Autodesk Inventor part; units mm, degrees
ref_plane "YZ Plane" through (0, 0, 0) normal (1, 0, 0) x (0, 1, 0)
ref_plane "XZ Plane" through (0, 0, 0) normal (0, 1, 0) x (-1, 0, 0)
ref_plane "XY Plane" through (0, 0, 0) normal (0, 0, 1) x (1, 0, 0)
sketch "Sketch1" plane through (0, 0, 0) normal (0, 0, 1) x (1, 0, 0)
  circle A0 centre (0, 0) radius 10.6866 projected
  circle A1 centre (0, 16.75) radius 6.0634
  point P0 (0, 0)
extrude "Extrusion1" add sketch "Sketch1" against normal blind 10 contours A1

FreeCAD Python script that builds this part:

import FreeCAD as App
import Part
import Sketcher
from FreeCAD import Vector
Q = App.Units.Quantity

doc = App.newDocument("Part")
body = doc.addObject("PartDesign::Body", "Body")

# Sketch on XY plane
sketch1 = body.newObject("Sketcher::SketchObject", "Sketch")
sketch1.AttachmentSupport = (doc.getObject("XY_Plane"), [""])
sketch1.MapMode = "FlatFace"
sketch1.addGeometry(Part.Circle(Vector(0, 16.75, 0), Vector(0, 0, 1), 6.0634), False)
sketch1.addConstraint([
    Sketcher.Constraint("PointOnObject", 0, 3, -2),
    Sketcher.Constraint("Diameter", 0, Q("12.1268 mm")),
    Sketcher.Constraint("DistanceY", -1, 1, 0, 3, Q("16.75 mm")),
])
pad1 = body.newObject("PartDesign::Pad", "Pad")
pad1.Profile = sketch1
pad1.Length = 10
pad1.Reversed = True

doc.recompute()
